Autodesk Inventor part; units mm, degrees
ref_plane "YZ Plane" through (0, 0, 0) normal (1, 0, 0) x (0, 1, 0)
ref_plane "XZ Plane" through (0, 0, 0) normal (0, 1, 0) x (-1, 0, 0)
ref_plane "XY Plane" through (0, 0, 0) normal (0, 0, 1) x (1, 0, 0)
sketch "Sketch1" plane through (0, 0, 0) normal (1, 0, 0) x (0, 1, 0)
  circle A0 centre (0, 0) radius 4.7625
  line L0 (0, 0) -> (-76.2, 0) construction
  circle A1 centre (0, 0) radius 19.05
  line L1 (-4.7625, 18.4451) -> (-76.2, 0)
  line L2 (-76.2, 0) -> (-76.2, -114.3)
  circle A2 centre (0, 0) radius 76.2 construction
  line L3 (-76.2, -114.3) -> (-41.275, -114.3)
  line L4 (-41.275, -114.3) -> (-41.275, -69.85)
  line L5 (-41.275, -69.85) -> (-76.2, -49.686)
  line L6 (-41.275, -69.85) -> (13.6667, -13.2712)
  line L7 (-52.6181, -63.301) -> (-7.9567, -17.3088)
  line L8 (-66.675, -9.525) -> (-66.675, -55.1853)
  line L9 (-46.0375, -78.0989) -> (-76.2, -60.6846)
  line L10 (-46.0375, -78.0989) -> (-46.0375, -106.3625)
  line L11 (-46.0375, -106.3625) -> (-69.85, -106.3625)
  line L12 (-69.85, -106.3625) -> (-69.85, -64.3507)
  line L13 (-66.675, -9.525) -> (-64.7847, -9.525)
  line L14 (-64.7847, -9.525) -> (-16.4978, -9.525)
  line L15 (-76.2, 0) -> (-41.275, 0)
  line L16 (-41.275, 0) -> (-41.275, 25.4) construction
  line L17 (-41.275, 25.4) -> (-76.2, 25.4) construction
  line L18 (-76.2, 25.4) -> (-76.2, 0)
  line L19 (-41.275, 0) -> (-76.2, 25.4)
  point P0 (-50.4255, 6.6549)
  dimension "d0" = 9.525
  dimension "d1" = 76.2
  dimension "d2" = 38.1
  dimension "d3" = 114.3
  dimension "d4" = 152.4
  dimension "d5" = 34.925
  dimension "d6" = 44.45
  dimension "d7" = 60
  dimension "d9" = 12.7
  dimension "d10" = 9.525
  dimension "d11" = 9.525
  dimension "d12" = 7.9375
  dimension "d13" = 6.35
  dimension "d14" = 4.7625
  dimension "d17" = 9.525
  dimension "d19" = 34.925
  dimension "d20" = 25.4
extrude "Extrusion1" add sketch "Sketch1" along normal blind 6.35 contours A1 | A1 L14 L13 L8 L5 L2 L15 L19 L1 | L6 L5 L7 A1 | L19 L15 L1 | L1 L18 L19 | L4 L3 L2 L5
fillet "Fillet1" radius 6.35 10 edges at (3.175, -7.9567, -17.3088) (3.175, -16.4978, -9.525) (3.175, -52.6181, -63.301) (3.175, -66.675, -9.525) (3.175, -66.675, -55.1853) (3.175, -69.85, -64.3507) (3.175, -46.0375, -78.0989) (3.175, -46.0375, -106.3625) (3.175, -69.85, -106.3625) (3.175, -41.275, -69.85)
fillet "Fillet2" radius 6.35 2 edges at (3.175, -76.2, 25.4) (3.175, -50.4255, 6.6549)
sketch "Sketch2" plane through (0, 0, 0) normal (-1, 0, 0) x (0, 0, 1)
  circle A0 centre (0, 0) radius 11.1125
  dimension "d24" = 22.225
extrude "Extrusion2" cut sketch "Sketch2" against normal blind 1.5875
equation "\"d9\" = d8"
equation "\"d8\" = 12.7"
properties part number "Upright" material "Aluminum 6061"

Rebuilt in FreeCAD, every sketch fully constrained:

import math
import FreeCAD as App
import Part
import Sketcher
from FreeCAD import Vector
Q = App.Units.Quantity


def edges_at(feature, points):
    """Names of the edges that pass closest to the given points."""
    edges = feature.Shape.Edges
    near = lambda p: min(range(len(edges)), key=lambda i: edges[i].distToShape(Part.Vertex(*p))[0])
    return sorted({f"Edge{near(p) + 1}" for p in points})


def add_polygon(sketch, points):
    """Adds a closed chain of lines whose ends are joined by coincident constraints."""
    first, n = sketch.GeometryCount, len(points)
    for a, b in zip(points, points[1:] + points[:1]):
        sketch.addGeometry(Part.LineSegment(App.Vector(*a, 0), App.Vector(*b, 0)), False)
    for i in range(n):
        sketch.addConstraint(Sketcher.Constraint("Coincident", first + i, 2, first + (i + 1) % n, 1))

doc = App.newDocument("Part")
params = doc.addObject("Spreadsheet::Sheet", "Params")
for row, (alias, value) in enumerate([
    ("sketch1_radius", "0.75 in"),
    ("sketch1_diameter", "0.375 in"),
    ("sketch1_height", "1.75 in"),
    ("sketch1_width", "1.375 in"),
    ("sketch1_height2", "1.654 in"),
    ("pad1_length", "0.25 in"),
    ("fillet_radius", "0.25 in"),
    ("fillet2_radius", "0.25 in"),
    ("sketch2_diameter", "0.875 in"),
    ("pocket1_length", "0.0625 in"),
], start=1):
    params.set(f"A{row}", alias)
    params.set(f"B{row}", "=" + value)
    params.setAlias(f"B{row}", alias)

body = doc.addObject("PartDesign::Body", "Body")

sketch1 = body.newObject("Sketcher::SketchObject", "Sketch")
sketch1.AttachmentSupport = (doc.getObject("YZ_Plane"), [""])
sketch1.MapMode = "FlatFace"
sketch1.addGeometry(Part.ArcOfCircle(Part.Circle(Vector(0, 0, 0), Vector(0, 0, 1), 19.1), math.radians(-44), math.radians(104)), False)
sketch1.addGeometry(Part.LineSegment(Vector(-4.8, 18.4, 0), Vector(-50.4, 6.7, 0)), False)
sketch1.addGeometry(Part.LineSegment(Vector(-50.4, 6.7, 0), Vector(-76.2, 25.4, 0)), False)
sketch1.addGeometry(Part.LineSegment(Vector(-76.2, 25.4, 0), Vector(-76.2, -60.7, 0)), False)
sketch1.addGeometry(Part.LineSegment(Vector(-76.2, -60.7, 0), Vector(-76.2, -114.3, 0)), False)
sketch1.addGeometry(Part.LineSegment(Vector(-76.2, -114.3, 0), Vector(-41.3, -114.3, 0)), False)
sketch1.addGeometry(Part.LineSegment(Vector(-41.3, -114.3, 0), Vector(-41.3, -69.8, 0)), False)
sketch1.addGeometry(Part.LineSegment(Vector(-41.3, -69.8, 0), Vector(13.7, -13.3, 0)), False)
sketch1.addGeometry(Part.ArcOfCircle(Part.Circle(Vector(0, 0, 0), Vector(0, 0, 1), 19.1), math.radians(-150), math.radians(-115)), False)
sketch1.addGeometry(Part.LineSegment(Vector(-8, -17.3, 0), Vector(-52.6, -63.3, 0)), False)
sketch1.addGeometry(Part.LineSegment(Vector(-52.6, -63.3, 0), Vector(-66.7, -55.2, 0)), False)
sketch1.addGeometry(Part.LineSegment(Vector(-66.7, -55.2, 0), Vector(-66.7, -9.5, 0)), False)
sketch1.addGeometry(Part.LineSegment(Vector(-66.7, -9.5, 0), Vector(-16.5, -9.5, 0)), False)
sketch1.addGeometry(Part.Circle(Vector(0, 0, 0), Vector(0, 0, 1), 4.8), False)
add_polygon(sketch1, [(-69.9, -64.4), (-46, -78.1), (-46, -106.4), (-69.8, -106.4)])
sketch1.addConstraint(Sketcher.Constraint("Tangent", 0, 2, 1, 1))
sketch1.addConstraint(Sketcher.Constraint("Coincident", 1, 2, 2, 1))
sketch1.addConstraint(Sketcher.Constraint("Coincident", 2, 2, 3, 1))
sketch1.addConstraint(Sketcher.Constraint("Coincident", 3, 2, 4, 1))
sketch1.addConstraint(Sketcher.Constraint("Coincident", 4, 2, 5, 1))
sketch1.addConstraint(Sketcher.Constraint("Coincident", 5, 2, 6, 1))
sketch1.addConstraint(Sketcher.Constraint("Coincident", 6, 2, 7, 1))
sketch1.addConstraint(Sketcher.Constraint("Tangent", 7, 2, 0, 1))
sketch1.addConstraint(Sketcher.Constraint("Coincident", 8, 2, 9, 1))
sketch1.addConstraint(Sketcher.Constraint("Coincident", 9, 2, 10, 1))
sketch1.addConstraint(Sketcher.Constraint("Coincident", 10, 2, 11, 1))
sketch1.addConstraint(Sketcher.Constraint("Coincident", 11, 2, 12, 1))
sketch1.addConstraint(Sketcher.Constraint("Coincident", 12, 2, 8, 1))
sketch1.addConstraint(Sketcher.Constraint("Vertical", 3))
sketch1.addConstraint(Sketcher.Constraint("Vertical", 4))
sketch1.addConstraint(Sketcher.Constraint("Horizontal", 5))
sketch1.addConstraint(Sketcher.Constraint("Vertical", 6))
sketch1.addConstraint(Sketcher.Constraint("Vertical", 11))
sketch1.addConstraint(Sketcher.Constraint("Horizontal", 12))
sketch1.addConstraint(Sketcher.Constraint("Vertical", 15))
sketch1.addConstraint(Sketcher.Constraint("Horizontal", 16))
sketch1.addConstraint(Sketcher.Constraint("Vertical", 17))
sketch1.addConstraint(Sketcher.Constraint("Coincident", 0, 3, -1, 1))
sketch1.addConstraint(Sketcher.Constraint("Coincident", 8, 3, -1, 1))
sketch1.addConstraint(Sketcher.Constraint("Coincident", 13, 3, -1, 1))
sketch1.addConstraint(Sketcher.Constraint("Equal", 0, 8))
sketch1.addConstraint(Sketcher.Constraint("Parallel", 7, 9))
sketch1.addConstraint(Sketcher.Constraint("Parallel", 10, 14))
sketch1.addConstraint(Sketcher.Constraint("Radius", 0, Q("0.75 in")))
sketch1.addConstraint(Sketcher.Constraint("Diameter", 13, Q("0.375 in")))
sketch1.addConstraint(Sketcher.Constraint("DistanceX", 2, 2, -1, 1, Q("3 in")))
sketch1.addConstraint(Sketcher.Constraint("DistanceY", -1, 1, 2, 2, Q("1 in")))
sketch1.addConstraint(Sketcher.Constraint("DistanceX", 10, 2, 6, 2, Q("1 in")))
sketch1.addConstraint(Sketcher.Constraint("DistanceY", 6, 1, 6, 2, Q("1.75 in")))
sketch1.addConstraint(Sketcher.Constraint("DistanceY", 4, 2, -1, 1, Q("4.5 in")))
sketch1.addConstraint(Sketcher.Constraint("DistanceX", 5, 1, 5, 2, Q("1.375 in")))
sketch1.addConstraint(Sketcher.Constraint("DistanceX", 4, 2, 16, 2, Q("0.25 in")))
sketch1.addConstraint(Sketcher.Constraint("DistanceX", 0, 2, -1, 1, Q("0.1875 in")))
sketch1.addConstraint(Sketcher.Constraint("DistanceY", 11, 2, -1, 1, Q("0.375 in")))
sketch1.addConstraint(Sketcher.Constraint("Angle", 10, Q("150 deg")))
sketch1.addConstraint(Sketcher.Constraint("DistanceX", 14, 2, 6, 2, Q("0.1875 in")))
sketch1.addConstraint(Sketcher.Constraint("DistanceY", 5, 2, 15, 2, Q("0.3125 in")))
sketch1.addConstraint(Sketcher.Constraint("DistanceY", 17, 1, 17, 2, Q("1.654 in")))
sketch1.addConstraint(Sketcher.Constraint("DistanceY", -1, 1, 1, 2, Q("0.262 in")))
sketch1.addConstraint(Sketcher.Constraint("DistanceY", 9, 2, 3, 2, Q("0.103 in")))
sketch1.addConstraint(Sketcher.Constraint("DistanceY", 3, 2, 3, 1, 86.0846))
sketch1.addConstraint(Sketcher.Constraint("DistanceY", 11, 1, 11, 2, 45.6603))
sketch1.setExpression("Constraints[32]", "Params.sketch1_radius")
sketch1.setExpression("Constraints[33]", "Params.sketch1_diameter")
sketch1.setExpression("Constraints[37]", "Params.sketch1_height")
sketch1.setExpression("Constraints[39]", "Params.sketch1_width")
sketch1.setExpression("Constraints[46]", "Params.sketch1_height2")
pad1 = body.newObject("PartDesign::Pad", "Pad")
pad1.Profile = sketch1
pad1.setExpression("Length", "Params.pad1_length")
doc.recompute()

fillet = body.newObject("PartDesign::Fillet", "Fillet")
fillet.Base = (pad1, edges_at(pad1, [
    (3.175, -7.957, -17.309),
    (3.175, -16.498, -9.525),
    (3.175, -52.618, -63.301),
    (3.175, -66.675, -9.525),
    (3.175, -66.675, -55.185),
    (3.175, -69.85, -64.351),
    (3.175, -46.038, -78.099),
    (3.175, -46.038, -106.362),
    (3.175, -69.85, -106.362),
    (3.175, -41.275, -69.85),
]))
fillet.setExpression("Radius", "Params.fillet_radius")
doc.recompute()

fillet2 = body.newObject("PartDesign::Fillet", "Fillet001")
fillet2.Base = (fillet, edges_at(fillet, [(3.175, -76.2, 25.4), (3.175, -50.425, 6.655)]))
fillet2.setExpression("Radius", "Params.fillet2_radius")

sketch2 = body.newObject("Sketcher::SketchObject", "Sketch001")
sketch2.AttachmentSupport = (doc.getObject("YZ_Plane"), [""])
sketch2.MapMode = "FlatFace"
sketch2.addGeometry(Part.Circle(Vector(0, 0, 0), Vector(0, 0, 1), 11), False)
sketch2.addConstraint(Sketcher.Constraint("Coincident", 0, 3, -1, 1))
sketch2.addConstraint(Sketcher.Constraint("Diameter", 0, Q("0.875 in")))
sketch2.setExpression("Constraints[1]", "Params.sketch2_diameter")
pocket1 = body.newObject("PartDesign::Pocket", "Pocket")
pocket1.Profile = sketch2
pocket1.setExpression("Length", "Params.pocket1_length")
pocket1.Reversed = True

doc.recompute()
